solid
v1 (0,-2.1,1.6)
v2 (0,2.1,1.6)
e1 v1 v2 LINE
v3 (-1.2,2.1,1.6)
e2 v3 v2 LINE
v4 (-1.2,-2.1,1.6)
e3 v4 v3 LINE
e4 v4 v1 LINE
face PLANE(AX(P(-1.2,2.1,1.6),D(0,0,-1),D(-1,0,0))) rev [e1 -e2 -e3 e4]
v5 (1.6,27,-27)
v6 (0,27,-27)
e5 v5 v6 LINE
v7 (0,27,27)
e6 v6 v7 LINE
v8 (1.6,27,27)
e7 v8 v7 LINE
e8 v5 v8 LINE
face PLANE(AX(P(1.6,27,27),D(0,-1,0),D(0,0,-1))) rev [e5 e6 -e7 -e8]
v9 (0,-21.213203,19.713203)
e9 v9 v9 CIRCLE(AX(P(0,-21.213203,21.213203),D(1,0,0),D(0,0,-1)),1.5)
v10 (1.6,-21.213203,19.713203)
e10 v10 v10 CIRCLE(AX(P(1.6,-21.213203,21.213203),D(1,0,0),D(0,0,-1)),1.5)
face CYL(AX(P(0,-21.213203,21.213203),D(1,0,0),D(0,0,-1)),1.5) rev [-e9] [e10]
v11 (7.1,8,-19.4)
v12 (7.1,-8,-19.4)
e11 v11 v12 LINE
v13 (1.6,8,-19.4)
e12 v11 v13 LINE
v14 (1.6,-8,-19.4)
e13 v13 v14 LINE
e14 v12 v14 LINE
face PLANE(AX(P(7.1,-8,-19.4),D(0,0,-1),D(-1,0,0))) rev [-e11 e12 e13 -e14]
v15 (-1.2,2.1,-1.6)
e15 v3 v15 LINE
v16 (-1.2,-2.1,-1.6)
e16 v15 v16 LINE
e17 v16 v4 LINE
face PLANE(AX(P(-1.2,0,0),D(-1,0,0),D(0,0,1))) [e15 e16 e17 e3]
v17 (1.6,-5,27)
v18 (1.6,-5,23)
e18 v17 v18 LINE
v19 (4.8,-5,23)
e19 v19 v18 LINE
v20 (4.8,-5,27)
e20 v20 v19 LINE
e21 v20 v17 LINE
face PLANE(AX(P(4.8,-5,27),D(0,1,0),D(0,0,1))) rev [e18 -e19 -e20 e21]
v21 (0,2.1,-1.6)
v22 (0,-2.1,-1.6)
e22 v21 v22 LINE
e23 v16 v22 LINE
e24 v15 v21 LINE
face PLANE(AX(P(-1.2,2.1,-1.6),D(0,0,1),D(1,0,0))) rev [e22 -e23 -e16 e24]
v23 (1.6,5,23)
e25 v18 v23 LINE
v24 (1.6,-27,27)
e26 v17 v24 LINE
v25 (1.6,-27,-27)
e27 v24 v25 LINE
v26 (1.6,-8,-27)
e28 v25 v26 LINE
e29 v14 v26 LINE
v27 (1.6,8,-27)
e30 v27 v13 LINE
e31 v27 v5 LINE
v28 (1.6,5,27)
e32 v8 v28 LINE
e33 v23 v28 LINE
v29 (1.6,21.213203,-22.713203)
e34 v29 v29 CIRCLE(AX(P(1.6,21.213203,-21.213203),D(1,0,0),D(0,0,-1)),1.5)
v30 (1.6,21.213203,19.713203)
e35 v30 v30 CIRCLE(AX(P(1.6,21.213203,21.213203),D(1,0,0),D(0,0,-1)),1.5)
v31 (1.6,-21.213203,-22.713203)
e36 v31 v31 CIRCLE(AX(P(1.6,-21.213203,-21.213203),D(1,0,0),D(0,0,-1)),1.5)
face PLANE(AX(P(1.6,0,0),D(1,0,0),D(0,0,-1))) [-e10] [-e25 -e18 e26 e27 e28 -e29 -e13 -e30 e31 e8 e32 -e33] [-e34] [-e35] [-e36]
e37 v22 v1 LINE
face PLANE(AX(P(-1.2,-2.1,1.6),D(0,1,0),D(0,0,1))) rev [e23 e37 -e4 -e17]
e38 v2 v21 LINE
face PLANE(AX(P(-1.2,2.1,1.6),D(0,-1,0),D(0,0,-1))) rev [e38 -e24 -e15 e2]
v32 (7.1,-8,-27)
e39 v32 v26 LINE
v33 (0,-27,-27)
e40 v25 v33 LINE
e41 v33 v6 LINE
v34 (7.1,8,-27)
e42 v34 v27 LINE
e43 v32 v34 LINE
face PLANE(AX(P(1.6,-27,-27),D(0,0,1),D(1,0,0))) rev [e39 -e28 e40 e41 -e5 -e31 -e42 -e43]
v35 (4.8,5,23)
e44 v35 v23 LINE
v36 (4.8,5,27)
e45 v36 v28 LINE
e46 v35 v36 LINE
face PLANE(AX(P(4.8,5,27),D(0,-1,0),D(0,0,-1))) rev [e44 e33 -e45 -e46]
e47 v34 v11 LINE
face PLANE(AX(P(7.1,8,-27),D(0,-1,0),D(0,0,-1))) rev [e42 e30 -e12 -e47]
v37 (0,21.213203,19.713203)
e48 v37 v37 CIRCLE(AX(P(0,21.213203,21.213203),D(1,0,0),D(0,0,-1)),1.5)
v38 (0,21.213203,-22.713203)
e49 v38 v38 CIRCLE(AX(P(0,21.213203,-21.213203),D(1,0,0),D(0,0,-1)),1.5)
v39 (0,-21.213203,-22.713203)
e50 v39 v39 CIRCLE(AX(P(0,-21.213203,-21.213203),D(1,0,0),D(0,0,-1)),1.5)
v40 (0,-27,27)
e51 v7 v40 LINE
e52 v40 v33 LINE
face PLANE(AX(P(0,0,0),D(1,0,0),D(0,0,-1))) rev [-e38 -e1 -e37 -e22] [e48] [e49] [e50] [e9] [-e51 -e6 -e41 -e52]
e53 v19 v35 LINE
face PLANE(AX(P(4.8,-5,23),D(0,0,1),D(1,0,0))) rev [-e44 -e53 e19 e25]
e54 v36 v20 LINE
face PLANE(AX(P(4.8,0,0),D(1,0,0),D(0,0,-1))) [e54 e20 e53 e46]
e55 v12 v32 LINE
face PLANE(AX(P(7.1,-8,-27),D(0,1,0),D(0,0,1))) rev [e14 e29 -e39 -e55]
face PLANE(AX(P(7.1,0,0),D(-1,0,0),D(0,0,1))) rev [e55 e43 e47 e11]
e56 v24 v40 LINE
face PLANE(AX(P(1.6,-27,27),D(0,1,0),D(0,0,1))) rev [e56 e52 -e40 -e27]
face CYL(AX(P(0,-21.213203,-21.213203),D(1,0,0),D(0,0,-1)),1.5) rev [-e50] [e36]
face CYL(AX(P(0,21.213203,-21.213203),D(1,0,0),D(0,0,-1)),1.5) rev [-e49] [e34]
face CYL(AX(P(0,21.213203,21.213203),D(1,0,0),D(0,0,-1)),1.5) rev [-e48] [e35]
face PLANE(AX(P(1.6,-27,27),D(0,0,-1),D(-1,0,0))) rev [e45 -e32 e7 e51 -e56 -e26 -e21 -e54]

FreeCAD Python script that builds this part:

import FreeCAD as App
import Part
import Sketcher
from FreeCAD import Vector


def add_polygon(sketch, points):
    """Adds a closed chain of lines whose ends are joined by coincident constraints."""
    first, n = sketch.GeometryCount, len(points)
    for a, b in zip(points, points[1:] + points[:1]):
        sketch.addGeometry(Part.LineSegment(App.Vector(*a, 0), App.Vector(*b, 0)), False)
    for i in range(n):
        sketch.addConstraint(Sketcher.Constraint("Coincident", first + i, 2, first + (i + 1) % n, 1))

doc = App.newDocument("Part")
body = doc.addObject("PartDesign::Body", "Body")

sketch1 = body.newObject("Sketcher::SketchObject", "Sketch")
sketch1.AttachmentSupport = (doc.getObject("YZ_Plane"), [""])
sketch1.MapMode = "FlatFace"
add_polygon(sketch1, [(-27, 27), (-27, -27), (27, -27), (27, 27)])
sketch1.addConstraint(Sketcher.Constraint("Vertical", 0))
sketch1.addConstraint(Sketcher.Constraint("Horizontal", 1))
sketch1.addConstraint(Sketcher.Constraint("Vertical", 2))
sketch1.addConstraint(Sketcher.Constraint("Horizontal", 3))
sketch1.addConstraint(Sketcher.Constraint("Symmetric", 0, 2, 2, 2, -1, 1))
sketch1.addConstraint(Sketcher.Constraint("Equal", 3, 0))
sketch1.addConstraint(Sketcher.Constraint("DistanceX", 1, 1, 1, 2, 54.0))
pad1 = body.newObject("PartDesign::Pad", "Pad")
pad1.Profile = sketch1
pad1.Length = 1.6

sketch2 = body.newObject("Sketcher::SketchObject", "Sketch001")
sketch2.AttachmentSupport = (doc.getObject("YZ_Plane"), [""])
sketch2.MapMode = "FlatFace"
sketch2.AttachmentOffset = App.Placement(Vector(0, 0, 1.6), App.Rotation())
sketch2.addGeometry(Part.Circle(Vector(-21.2, 21.2, 0), Vector(0, 0, 1), 1.5), False)
sketch2.addGeometry(Part.Circle(Vector(21.2, 21.2, 0), Vector(0, 0, 1), 1.5), False)
sketch2.addGeometry(Part.Circle(Vector(-21.2, -21.2, 0), Vector(0, 0, 1), 1.5), False)
sketch2.addGeometry(Part.Circle(Vector(21.2, -21.2, 0), Vector(0, 0, 1), 1.5), False)
sketch2.addConstraint(Sketcher.Constraint("Equal", 0, 1))
sketch2.addConstraint(Sketcher.Constraint("Equal", 1, 2))
sketch2.addConstraint(Sketcher.Constraint("Equal", 2, 3))
sketch2.addConstraint(Sketcher.Constraint("Symmetric", 1, 3, 2, 3, -1, 1))
sketch2.addConstraint(Sketcher.Constraint("Symmetric", 0, 3, 3, 3, -1, 1))
sketch2.addConstraint(Sketcher.Constraint("Symmetric", 0, 3, 1, 3, -2))
sketch2.addConstraint(Sketcher.Constraint("Diameter", 0, 3.0))
sketch2.addConstraint(Sketcher.Constraint("DistanceX", 0, 3, -1, 1, 21.213203))
sketch2.addConstraint(Sketcher.Constraint("DistanceY", -1, 1, 0, 3, 21.213203))
pocket1 = body.newObject("PartDesign::Pocket", "Pocket")
pocket1.Profile = sketch2
pocket1.Type = "ThroughAll"

sketch3 = body.newObject("Sketcher::SketchObject", "Sketch002")
sketch3.AttachmentSupport = (doc.getObject("YZ_Plane"), [""])
sketch3.MapMode = "FlatFace"
add_polygon(sketch3, [(2.1, 1.6), (2.1, -1.6), (-2.1, -1.6), (-2.1, 1.6)])
sketch3.addConstraint(Sketcher.Constraint("Vertical", 0))
sketch3.addConstraint(Sketcher.Constraint("Horizontal", 1))
sketch3.addConstraint(Sketcher.Constraint("Vertical", 2))
sketch3.addConstraint(Sketcher.Constraint("Horizontal", 3))
sketch3.addConstraint(Sketcher.Constraint("Symmetric", 0, 2, 2, 2, -1, 1))
sketch3.addConstraint(Sketcher.Constraint("DistanceX", 1, 2, 1, 1, 4.2))
sketch3.addConstraint(Sketcher.Constraint("DistanceY", 0, 2, 0, 1, 3.2))
pad2 = body.newObject("PartDesign::Pad", "Pad001")
pad2.Profile = sketch3
pad2.Length = 1.2
pad2.Reversed = True

sketch4 = body.newObject("Sketcher::SketchObject", "Sketch003")
sketch4.AttachmentSupport = (doc.getObject("YZ_Plane"), [""])
sketch4.MapMode = "FlatFace"
sketch4.AttachmentOffset = App.Placement(Vector(0, 0, 1.6), App.Rotation())
add_polygon(sketch4, [(-8, -19), (-8, -27), (8, -27), (8, -19)])
sketch4.addConstraint(Sketcher.Constraint("Vertical", 0))
sketch4.addConstraint(Sketcher.Constraint("Horizontal", 1))
sketch4.addConstraint(Sketcher.Constraint("Vertical", 2))
sketch4.addConstraint(Sketcher.Constraint("Horizontal", 3))
sketch4.addConstraint(Sketcher.Constraint("DistanceX", 1, 1, 1, 2, 16.0))
sketch4.addConstraint(Sketcher.Constraint("DistanceY", 0, 2, 0, 1, 7.6))
sketch4.addConstraint(Sketcher.Constraint("DistanceX", 0, 2, -1, 1, 8.0))
sketch4.addConstraint(Sketcher.Constraint("DistanceY", 0, 2, -1, 1, 27.0))
pad3 = body.newObject("PartDesign::Pad", "Pad002")
pad3.Profile = sketch4
pad3.Length = 5.5

sketch5 = body.newObject("Sketcher::SketchObject", "Sketch004")
sketch5.AttachmentSupport = (doc.getObject("YZ_Plane"), [""])
sketch5.MapMode = "FlatFace"
sketch5.AttachmentOffset = App.Placement(Vector(0, 0, 1.6), App.Rotation())
add_polygon(sketch5, [(-5, 27), (-5, 23), (5, 23), (5, 27)])
sketch5.addConstraint(Sketcher.Constraint("Vertical", 0))
sketch5.addConstraint(Sketcher.Constraint("Horizontal", 1))
sketch5.addConstraint(Sketcher.Constraint("Vertical", 2))
sketch5.addConstraint(Sketcher.Constraint("Horizontal", 3))
sketch5.addConstraint(Sketcher.Constraint("DistanceX", 1, 1, 1, 2, 10.0))
sketch5.addConstraint(Sketcher.Constraint("DistanceY", 0, 2, 0, 1, 4.0))
sketch5.addConstraint(Sketcher.Constraint("DistanceX", 0, 2, -1, 1, 5.0))
sketch5.addConstraint(Sketcher.Constraint("DistanceY", -1, 1, 0, 2, 23.0))
pad4 = body.newObject("PartDesign::Pad", "Pad003")
pad4.Profile = sketch5
pad4.Length = 3.2

doc.recompute()
